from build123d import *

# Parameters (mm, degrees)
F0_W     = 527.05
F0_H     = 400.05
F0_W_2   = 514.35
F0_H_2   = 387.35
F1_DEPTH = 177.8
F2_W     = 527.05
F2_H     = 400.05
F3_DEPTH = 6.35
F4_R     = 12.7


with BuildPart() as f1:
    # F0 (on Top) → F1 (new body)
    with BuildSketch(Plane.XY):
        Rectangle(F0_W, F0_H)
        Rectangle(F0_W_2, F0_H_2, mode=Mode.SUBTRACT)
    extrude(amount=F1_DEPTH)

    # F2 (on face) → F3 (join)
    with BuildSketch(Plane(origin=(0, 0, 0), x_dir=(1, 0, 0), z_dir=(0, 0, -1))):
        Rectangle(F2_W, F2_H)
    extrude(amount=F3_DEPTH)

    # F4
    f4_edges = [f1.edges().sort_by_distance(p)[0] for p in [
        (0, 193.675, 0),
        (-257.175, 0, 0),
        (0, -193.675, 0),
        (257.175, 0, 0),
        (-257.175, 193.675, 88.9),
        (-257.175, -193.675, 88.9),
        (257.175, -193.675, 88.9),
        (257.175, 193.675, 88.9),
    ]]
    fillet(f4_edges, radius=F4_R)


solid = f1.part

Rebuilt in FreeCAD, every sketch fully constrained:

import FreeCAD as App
import Part
import Sketcher
Q = App.Units.Quantity


def edges_at(feature, points):
    """Names of the edges that pass closest to the given points."""
    edges = feature.Shape.Edges
    near = lambda p: min(range(len(edges)), key=lambda i: edges[i].distToShape(Part.Vertex(*p))[0])
    return sorted({f"Edge{near(p) + 1}" for p in points})

doc = App.newDocument("Part")
params = doc.addObject("Spreadsheet::Sheet", "Params")
for row, (alias, value) in enumerate([
    ("sketch1_width", "20.75 in"),
    ("sketch1_width2", "20.25 in"),
    ("sketch1_height", "15.75 in"),
    ("sketch1_height2", "15.25 in"),
    ("pad1_length", "7 in"),
    ("sketch2_width", "20.75 in"),
    ("sketch2_height", "15.75 in"),
    ("pad2_length", "0.25 in"),
    ("fillet_radius", "0.5 in"),
], start=1):
    params.set(f"A{row}", alias)
    params.set(f"B{row}", "=" + value)
    params.setAlias(f"B{row}", alias)

body = doc.addObject("PartDesign::Body", "Body")

sketch1 = body.newObject("Sketcher::SketchObject", "Sketch")
sketch1.AttachmentSupport = (doc.getObject("XY_Plane"), [""])
sketch1.MapMode = "FlatFace"
sketch1.addGeometry(Part.LineSegment(App.Vector(-264, 200, 0), App.Vector(-264, -200, 0)), False)
sketch1.addGeometry(Part.LineSegment(App.Vector(-264, -200, 0), App.Vector(264, -200, 0)), False)
sketch1.addGeometry(Part.LineSegment(App.Vector(264, -200, 0), App.Vector(264, 200, 0)), False)
sketch1.addGeometry(Part.LineSegment(App.Vector(264, 200, 0), App.Vector(-264, 200, 0)), False)
sketch1.addGeometry(Part.LineSegment(App.Vector(257, -194, 0), App.Vector(-257, -194, 0)), False)
sketch1.addGeometry(Part.LineSegment(App.Vector(-257, -194, 0), App.Vector(-257, 194, 0)), False)
sketch1.addGeometry(Part.LineSegment(App.Vector(-257, 194, 0), App.Vector(257, 194, 0)), False)
sketch1.addGeometry(Part.LineSegment(App.Vector(257, 194, 0), App.Vector(257, -194, 0)), False)
sketch1.addConstraint(Sketcher.Constraint("Coincident", 0, 2, 1, 1))
sketch1.addConstraint(Sketcher.Constraint("Coincident", 1, 2, 2, 1))
sketch1.addConstraint(Sketcher.Constraint("Coincident", 2, 2, 3, 1))
sketch1.addConstraint(Sketcher.Constraint("Coincident", 3, 2, 0, 1))
sketch1.addConstraint(Sketcher.Constraint("Coincident", 4, 2, 5, 1))
sketch1.addConstraint(Sketcher.Constraint("Coincident", 5, 2, 6, 1))
sketch1.addConstraint(Sketcher.Constraint("Coincident", 6, 2, 7, 1))
sketch1.addConstraint(Sketcher.Constraint("Coincident", 7, 2, 4, 1))
sketch1.addConstraint(Sketcher.Constraint("Vertical", 0))
sketch1.addConstraint(Sketcher.Constraint("Horizontal", 1))
sketch1.addConstraint(Sketcher.Constraint("Vertical", 2))
sketch1.addConstraint(Sketcher.Constraint("Horizontal", 3))
sketch1.addConstraint(Sketcher.Constraint("Horizontal", 4))
sketch1.addConstraint(Sketcher.Constraint("Vertical", 5))
sketch1.addConstraint(Sketcher.Constraint("Horizontal", 6))
sketch1.addConstraint(Sketcher.Constraint("Vertical", 7))
sketch1.addConstraint(Sketcher.Constraint("Symmetric", 0, 2, 2, 2, -1, 1))
sketch1.addConstraint(Sketcher.Constraint("Symmetric", 4, 2, 6, 2, -1, 1))
sketch1.addConstraint(Sketcher.Constraint("DistanceX", 1, 1, 1, 2, Q("20.75 in")))
sketch1.addConstraint(Sketcher.Constraint("DistanceX", 4, 2, 4, 1, Q("20.25 in")))
sketch1.addConstraint(Sketcher.Constraint("DistanceY", 0, 2, 0, 1, Q("15.75 in")))
sketch1.addConstraint(Sketcher.Constraint("DistanceY", 5, 1, 5, 2, Q("15.25 in")))
sketch1.setExpression("Constraints[18]", "Params.sketch1_width")
sketch1.setExpression("Constraints[19]", "Params.sketch1_width2")
sketch1.setExpression("Constraints[20]", "Params.sketch1_height")
sketch1.setExpression("Constraints[21]", "Params.sketch1_height2")
pad1 = body.newObject("PartDesign::Pad", "Pad")
pad1.Profile = sketch1
pad1.setExpression("Length", "Params.pad1_length")

sketch2 = body.newObject("Sketcher::SketchObject", "Sketch001")
sketch2.AttachmentSupport = (doc.getObject("XY_Plane"), [""])
sketch2.MapMode = "FlatFace"
sketch2.addGeometry(Part.LineSegment(App.Vector(-264, -200, 0), App.Vector(-264, 200, 0)), False)
sketch2.addGeometry(Part.LineSegment(App.Vector(-264, 200, 0), App.Vector(264, 200, 0)), False)
sketch2.addGeometry(Part.LineSegment(App.Vector(264, 200, 0), App.Vector(264, -200, 0)), False)
sketch2.addGeometry(Part.LineSegment(App.Vector(264, -200, 0), App.Vector(-264, -200, 0)), False)
sketch2.addConstraint(Sketcher.Constraint("Coincident", 0, 2, 1, 1))
sketch2.addConstraint(Sketcher.Constraint("Coincident", 1, 2, 2, 1))
sketch2.addConstraint(Sketcher.Constraint("Coincident", 2, 2, 3, 1))
sketch2.addConstraint(Sketcher.Constraint("Coincident", 3, 2, 0, 1))
sketch2.addConstraint(Sketcher.Constraint("Vertical", 0))
sketch2.addConstraint(Sketcher.Constraint("Horizontal", 1))
sketch2.addConstraint(Sketcher.Constraint("Vertical", 2))
sketch2.addConstraint(Sketcher.Constraint("Horizontal", 3))
sketch2.addConstraint(Sketcher.Constraint("Symmetric", 0, 2, 2, 2, -1, 1))
sketch2.addConstraint(Sketcher.Constraint("DistanceX", 1, 1, 1, 2, Q("20.75 in")))
sketch2.addConstraint(Sketcher.Constraint("DistanceY", 0, 1, 0, 2, Q("15.75 in")))
sketch2.setExpression("Constraints[9]", "Params.sketch2_width")
sketch2.setExpression("Constraints[10]", "Params.sketch2_height")
pad2 = body.newObject("PartDesign::Pad", "Pad001")
pad2.Profile = sketch2
pad2.setExpression("Length", "Params.pad2_length")
pad2.Reversed = True
doc.recompute()

fillet = body.newObject("PartDesign::Fillet", "Fillet")
fillet.Base = (pad2, edges_at(pad2, [
    (0, 193.675, 0),
    (-257.175, 0, 0),
    (0, -193.675, 0),
    (257.175, 0, 0),
    (-257.175, 193.675, 88.9),
    (-257.175, -193.675, 88.9),
    (257.175, -193.675, 88.9),
    (257.175, 193.675, 88.9),
]))
fillet.setExpression("Radius", "Params.fillet_radius")

doc.recompute()
